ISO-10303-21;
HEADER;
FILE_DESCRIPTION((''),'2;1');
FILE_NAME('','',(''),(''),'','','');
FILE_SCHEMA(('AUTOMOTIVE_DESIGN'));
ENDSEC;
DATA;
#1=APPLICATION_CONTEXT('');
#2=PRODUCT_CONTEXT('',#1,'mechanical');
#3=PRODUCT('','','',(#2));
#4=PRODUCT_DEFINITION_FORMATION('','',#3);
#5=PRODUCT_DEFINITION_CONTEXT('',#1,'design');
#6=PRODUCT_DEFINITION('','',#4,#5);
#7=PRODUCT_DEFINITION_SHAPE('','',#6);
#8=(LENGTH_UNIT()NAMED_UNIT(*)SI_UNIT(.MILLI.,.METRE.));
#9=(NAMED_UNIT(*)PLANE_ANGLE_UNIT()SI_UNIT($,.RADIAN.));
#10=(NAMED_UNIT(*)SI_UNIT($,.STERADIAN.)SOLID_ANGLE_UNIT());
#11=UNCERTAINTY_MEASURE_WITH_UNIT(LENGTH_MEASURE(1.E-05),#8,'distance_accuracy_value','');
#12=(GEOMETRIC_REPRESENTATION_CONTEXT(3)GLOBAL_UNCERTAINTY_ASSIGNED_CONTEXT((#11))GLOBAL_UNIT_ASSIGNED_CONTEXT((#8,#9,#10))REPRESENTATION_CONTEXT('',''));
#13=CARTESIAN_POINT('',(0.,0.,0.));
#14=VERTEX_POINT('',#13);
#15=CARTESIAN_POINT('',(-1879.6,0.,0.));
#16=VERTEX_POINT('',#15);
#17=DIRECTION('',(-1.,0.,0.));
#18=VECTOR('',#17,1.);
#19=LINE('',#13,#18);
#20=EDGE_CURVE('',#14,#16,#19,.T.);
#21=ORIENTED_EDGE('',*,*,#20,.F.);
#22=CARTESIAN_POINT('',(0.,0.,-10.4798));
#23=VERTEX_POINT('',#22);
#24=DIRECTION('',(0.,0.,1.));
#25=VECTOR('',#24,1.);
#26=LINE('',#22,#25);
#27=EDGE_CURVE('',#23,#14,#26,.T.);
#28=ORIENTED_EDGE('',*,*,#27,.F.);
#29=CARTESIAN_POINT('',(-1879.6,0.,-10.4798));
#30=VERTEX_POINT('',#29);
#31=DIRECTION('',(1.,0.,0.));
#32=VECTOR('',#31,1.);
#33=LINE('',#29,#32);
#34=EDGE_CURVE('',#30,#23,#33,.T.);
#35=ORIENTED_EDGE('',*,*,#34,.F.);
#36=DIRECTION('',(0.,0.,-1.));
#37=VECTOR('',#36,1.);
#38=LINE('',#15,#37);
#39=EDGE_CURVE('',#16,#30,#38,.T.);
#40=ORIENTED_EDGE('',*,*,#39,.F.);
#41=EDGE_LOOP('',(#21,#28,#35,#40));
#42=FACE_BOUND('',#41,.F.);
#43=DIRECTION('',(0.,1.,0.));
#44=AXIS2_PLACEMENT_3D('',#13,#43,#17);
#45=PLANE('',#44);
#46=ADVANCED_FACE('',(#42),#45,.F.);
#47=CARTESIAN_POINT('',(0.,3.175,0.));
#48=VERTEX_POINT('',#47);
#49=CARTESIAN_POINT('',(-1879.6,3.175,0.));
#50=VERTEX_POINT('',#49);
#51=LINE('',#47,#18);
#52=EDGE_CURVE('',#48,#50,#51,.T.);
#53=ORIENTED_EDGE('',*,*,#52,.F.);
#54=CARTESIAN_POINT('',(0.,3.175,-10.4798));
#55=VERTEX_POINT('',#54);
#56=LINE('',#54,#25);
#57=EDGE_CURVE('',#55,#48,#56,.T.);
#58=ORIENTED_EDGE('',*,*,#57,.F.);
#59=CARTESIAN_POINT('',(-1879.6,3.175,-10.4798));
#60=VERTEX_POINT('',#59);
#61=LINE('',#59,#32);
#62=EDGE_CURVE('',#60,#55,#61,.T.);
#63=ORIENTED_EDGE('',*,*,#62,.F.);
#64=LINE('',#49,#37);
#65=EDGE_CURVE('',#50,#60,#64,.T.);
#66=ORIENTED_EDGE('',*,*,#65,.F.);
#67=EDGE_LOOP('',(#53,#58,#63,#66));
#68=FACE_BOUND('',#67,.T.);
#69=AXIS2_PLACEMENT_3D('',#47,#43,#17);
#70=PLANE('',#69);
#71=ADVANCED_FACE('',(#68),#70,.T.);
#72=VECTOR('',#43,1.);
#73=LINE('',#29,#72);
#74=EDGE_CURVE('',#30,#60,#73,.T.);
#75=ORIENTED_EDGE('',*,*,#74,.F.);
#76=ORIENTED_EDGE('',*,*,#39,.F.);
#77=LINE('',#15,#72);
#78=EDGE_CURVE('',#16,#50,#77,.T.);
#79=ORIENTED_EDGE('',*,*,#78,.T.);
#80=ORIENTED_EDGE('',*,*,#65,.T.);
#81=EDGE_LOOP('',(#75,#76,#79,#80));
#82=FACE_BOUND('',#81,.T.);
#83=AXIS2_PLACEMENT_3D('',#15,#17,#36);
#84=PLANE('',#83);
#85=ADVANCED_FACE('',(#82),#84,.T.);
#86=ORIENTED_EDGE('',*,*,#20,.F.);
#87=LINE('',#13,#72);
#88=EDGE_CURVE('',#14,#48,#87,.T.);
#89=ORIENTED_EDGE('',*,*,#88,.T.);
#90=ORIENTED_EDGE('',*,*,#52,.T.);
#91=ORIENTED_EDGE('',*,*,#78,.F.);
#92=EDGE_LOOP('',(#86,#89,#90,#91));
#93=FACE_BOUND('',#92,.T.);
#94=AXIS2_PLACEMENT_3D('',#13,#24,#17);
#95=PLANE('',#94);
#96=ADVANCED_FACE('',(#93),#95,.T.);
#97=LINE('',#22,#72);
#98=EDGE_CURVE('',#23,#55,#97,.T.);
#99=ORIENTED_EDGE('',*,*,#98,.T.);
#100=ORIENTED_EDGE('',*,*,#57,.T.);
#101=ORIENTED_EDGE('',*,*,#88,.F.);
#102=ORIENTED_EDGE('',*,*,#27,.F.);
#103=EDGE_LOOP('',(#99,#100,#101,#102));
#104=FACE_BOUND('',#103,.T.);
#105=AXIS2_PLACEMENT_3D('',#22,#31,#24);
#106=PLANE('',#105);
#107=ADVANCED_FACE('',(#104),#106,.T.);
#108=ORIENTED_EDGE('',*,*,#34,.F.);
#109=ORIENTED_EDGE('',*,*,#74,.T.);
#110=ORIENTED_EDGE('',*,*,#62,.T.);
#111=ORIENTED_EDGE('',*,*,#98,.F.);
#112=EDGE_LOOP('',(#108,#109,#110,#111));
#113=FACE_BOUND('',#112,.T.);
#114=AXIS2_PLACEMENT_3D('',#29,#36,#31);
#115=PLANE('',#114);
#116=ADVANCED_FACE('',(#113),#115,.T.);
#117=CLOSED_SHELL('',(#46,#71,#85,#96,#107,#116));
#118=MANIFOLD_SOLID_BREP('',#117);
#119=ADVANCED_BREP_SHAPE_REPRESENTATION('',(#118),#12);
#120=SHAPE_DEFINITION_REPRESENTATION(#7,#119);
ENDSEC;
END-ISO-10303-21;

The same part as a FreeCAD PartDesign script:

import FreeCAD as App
import Part
import Sketcher

V = App.Vector
Q = App.Units.Quantity


def add_polygon(sketch, points):
    """Adds a closed chain of lines whose ends are joined by coincident constraints."""
    first, n = sketch.GeometryCount, len(points)
    for a, b in zip(points, points[1:] + points[:1]):
        sketch.addGeometry(Part.LineSegment(App.Vector(*a, 0), App.Vector(*b, 0)), False)
    for i in range(n):
        sketch.addConstraint(Sketcher.Constraint("Coincident", first + i, 2, first + (i + 1) % n, 1))

doc = App.newDocument("Part")
params = doc.addObject("Spreadsheet::Sheet", "Params")
for row, (alias, value) in enumerate([
    ("sketch1_width", "74 in"),
    ("pad1_length", "0.125 in"),
], start=1):
    params.set(f"A{row}", alias)
    params.set(f"B{row}", "=" + value)
    params.setAlias(f"B{row}", alias)

body = doc.addObject("PartDesign::Body", "Body")

# Sketch on XZ plane
sketch1 = doc.addObject("Sketcher::SketchObject", "Sketch")
body.addObject(sketch1)
sketch1.AttachmentSupport = (doc.XZ_Plane, [""])
sketch1.MapMode = "FlatFace"
add_polygon(sketch1, [(-1880, 0), (0, 0), (0, -10), (-1880, -10)])  # lines 0-3
sketch1.addConstraint(Sketcher.Constraint("Horizontal", 0))
sketch1.addConstraint(Sketcher.Constraint("Vertical", 1))
sketch1.addConstraint(Sketcher.Constraint("Horizontal", 2))
sketch1.addConstraint(Sketcher.Constraint("Vertical", 3))
sketch1.addConstraint(Sketcher.Constraint("Coincident", 0, 2, -1, 1))
sketch1.addConstraint(Sketcher.Constraint("DistanceX", 0, 1, 0, 2, Q("74 in")))
sketch1.addConstraint(Sketcher.Constraint("DistanceY", 1, 2, 1, 1, Q("0.4126 in")))
sketch1.setExpression("Constraints[9]", "Params.sketch1_width")
pad1 = doc.addObject("PartDesign::Pad", "Pad")
body.addObject(pad1)
pad1.Profile = sketch1
pad1.setExpression("Length", "Params.pad1_length")
pad1.Reversed = True

doc.recompute()
